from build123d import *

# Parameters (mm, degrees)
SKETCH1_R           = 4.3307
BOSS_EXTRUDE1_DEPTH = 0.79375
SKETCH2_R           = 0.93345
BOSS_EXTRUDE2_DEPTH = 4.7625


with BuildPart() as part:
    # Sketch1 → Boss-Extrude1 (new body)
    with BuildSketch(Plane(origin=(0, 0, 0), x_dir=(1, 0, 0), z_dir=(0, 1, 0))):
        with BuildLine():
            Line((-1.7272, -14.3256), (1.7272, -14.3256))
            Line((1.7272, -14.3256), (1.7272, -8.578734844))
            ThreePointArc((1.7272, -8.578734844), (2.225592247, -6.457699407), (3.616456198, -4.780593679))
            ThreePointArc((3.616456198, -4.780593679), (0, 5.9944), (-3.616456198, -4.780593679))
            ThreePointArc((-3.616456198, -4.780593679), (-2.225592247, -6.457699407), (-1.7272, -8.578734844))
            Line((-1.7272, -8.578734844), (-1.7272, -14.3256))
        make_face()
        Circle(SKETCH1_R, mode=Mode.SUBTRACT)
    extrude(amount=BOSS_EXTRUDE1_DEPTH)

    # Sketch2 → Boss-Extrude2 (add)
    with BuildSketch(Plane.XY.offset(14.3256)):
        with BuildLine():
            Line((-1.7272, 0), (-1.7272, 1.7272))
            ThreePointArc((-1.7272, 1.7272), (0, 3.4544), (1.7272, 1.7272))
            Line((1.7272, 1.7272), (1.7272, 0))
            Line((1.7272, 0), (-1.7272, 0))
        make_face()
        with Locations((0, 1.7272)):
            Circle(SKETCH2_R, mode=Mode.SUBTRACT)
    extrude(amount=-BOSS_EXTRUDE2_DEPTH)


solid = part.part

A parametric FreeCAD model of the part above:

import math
import FreeCAD as App
import Part
import Sketcher

V = App.Vector
Q = App.Units.Quantity

doc = App.newDocument("Part")
body = doc.addObject("PartDesign::Body", "Body")

# Sketch on XZ plane
sketch1 = body.newObject("Sketcher::SketchObject", "Sketch")
sketch1.AttachmentSupport = (doc.getObject("XZ_Plane"), [""])
sketch1.MapMode = "FlatFace"
sketch1.addGeometry(Part.LineSegment(V(-1.7, 14.3, 0), V(1.7, 14.3, 0)), False)
sketch1.addGeometry(Part.LineSegment(V(1.7, 14.3, 0), V(1.7, 8.6, 0)), False)
sketch1.addGeometry(Part.ArcOfCircle(Part.Circle(V(6.5, 8.6, 0), V(0, 0, 1), 4.8), math.radians(180), math.radians(233)), False)
sketch1.addGeometry(Part.ArcOfCircle(Part.Circle(V(0, 0, 0), V(0, 0, 1), 6), math.radians(127), math.radians(413)), False)
sketch1.addGeometry(Part.ArcOfCircle(Part.Circle(V(-6.5, 8.6, 0), V(0, 0, 1), 4.8), math.radians(-53), math.radians(0)), False)
sketch1.addGeometry(Part.LineSegment(V(-1.7, 8.6, 0), V(-1.7, 14.3, 0)), False)
sketch1.addGeometry(Part.Circle(V(0, 0, 0), V(0, 0, 1), 4.3), False)
sketch1.addConstraint(Sketcher.Constraint("Coincident", 0, 2, 1, 1))
sketch1.addConstraint(Sketcher.Constraint("Tangent", 1, 2, 2, 1))
sketch1.addConstraint(Sketcher.Constraint("Tangent", 2, 2, 3, 2))
sketch1.addConstraint(Sketcher.Constraint("Tangent", 3, 1, 4, 1))
sketch1.addConstraint(Sketcher.Constraint("Tangent", 4, 2, 5, 1))
sketch1.addConstraint(Sketcher.Constraint("Coincident", 5, 2, 0, 1))
sketch1.addConstraint(Sketcher.Constraint("Horizontal", 0))
sketch1.addConstraint(Sketcher.Constraint("Vertical", 1))
sketch1.addConstraint(Sketcher.Constraint("Vertical", 5))
sketch1.addConstraint(Sketcher.Constraint("Coincident", 3, 3, -1, 1))
sketch1.addConstraint(Sketcher.Constraint("Coincident", 6, 3, -1, 1))
sketch1.addConstraint(Sketcher.Constraint("Equal", 2, 4))
sketch1.addConstraint(Sketcher.Constraint("Horizontal", 2, 3, 4, 3))
sketch1.addConstraint(Sketcher.Constraint("Diameter", 6, Q("0.341 in")))
sketch1.addConstraint(Sketcher.Constraint("Radius", 2, Q("0.1875 in")))
sketch1.addConstraint(Sketcher.Constraint("Radius", 3, Q("0.236 in")))
sketch1.addConstraint(Sketcher.Constraint("DistanceX", 0, 1, 0, 2, Q("0.136 in")))
sketch1.addConstraint(Sketcher.Constraint("DistanceY", -1, 1, 0, 2, Q("0.564 in")))
pad1 = body.newObject("PartDesign::Pad", "Pad")
pad1.Profile = sketch1
pad1.Length = Q("0.03125 in")
pad1.Reversed = True

# Sketch on XY plane
sketch2 = body.newObject("Sketcher::SketchObject", "Sketch001")
sketch2.AttachmentSupport = (doc.getObject("XY_Plane"), [""])
sketch2.MapMode = "FlatFace"
sketch2.AttachmentOffset = App.Placement(V(0, 0, 0.564 * 25.4), App.Rotation())
sketch2.addGeometry(Part.LineSegment(V(-1.7, 1.7, 0), V(-1.7, 0, 0)), False)
sketch2.addGeometry(Part.LineSegment(V(-1.7, 0, 0), V(1.7, 0, 0)), False)
sketch2.addGeometry(Part.LineSegment(V(1.7, 0, 0), V(1.7, 1.7, 0)), False)
sketch2.addGeometry(Part.ArcOfCircle(Part.Circle(V(0, 1.7, 0), V(0, 0, 1), 1.7), math.radians(0), math.radians(180)), False)
sketch2.addGeometry(Part.Circle(V(0, 1.7, 0), V(0, 0, 1), 0.9), False)
sketch2.addConstraint(Sketcher.Constraint("Coincident", 0, 2, 1, 1))
sketch2.addConstraint(Sketcher.Constraint("Coincident", 1, 2, 2, 1))
sketch2.addConstraint(Sketcher.Constraint("Tangent", 2, 2, 3, 1))
sketch2.addConstraint(Sketcher.Constraint("Tangent", 3, 2, 0, 1))
sketch2.addConstraint(Sketcher.Constraint("Vertical", 0))
sketch2.addConstraint(Sketcher.Constraint("Horizontal", 1))
sketch2.addConstraint(Sketcher.Constraint("Vertical", 2))
sketch2.addConstraint(Sketcher.Constraint("Coincident", 4, 3, 3, 3))
sketch2.addConstraint(Sketcher.Constraint("Symmetric", 0, 2, 1, 2, -1, 1))
sketch2.addConstraint(Sketcher.Constraint("Radius", 3, Q("0.068 in")))
sketch2.addConstraint(Sketcher.Constraint("Diameter", 4, Q("0.0735 in")))
sketch2.addConstraint(Sketcher.Constraint("DistanceY", 0, 2, 0, 1, Q("0.068 in")))
pad2 = body.newObject("PartDesign::Pad", "Pad001")
pad2.Profile = sketch2
pad2.Length = Q("0.1875 in")
pad2.Reversed = True

doc.recompute()
